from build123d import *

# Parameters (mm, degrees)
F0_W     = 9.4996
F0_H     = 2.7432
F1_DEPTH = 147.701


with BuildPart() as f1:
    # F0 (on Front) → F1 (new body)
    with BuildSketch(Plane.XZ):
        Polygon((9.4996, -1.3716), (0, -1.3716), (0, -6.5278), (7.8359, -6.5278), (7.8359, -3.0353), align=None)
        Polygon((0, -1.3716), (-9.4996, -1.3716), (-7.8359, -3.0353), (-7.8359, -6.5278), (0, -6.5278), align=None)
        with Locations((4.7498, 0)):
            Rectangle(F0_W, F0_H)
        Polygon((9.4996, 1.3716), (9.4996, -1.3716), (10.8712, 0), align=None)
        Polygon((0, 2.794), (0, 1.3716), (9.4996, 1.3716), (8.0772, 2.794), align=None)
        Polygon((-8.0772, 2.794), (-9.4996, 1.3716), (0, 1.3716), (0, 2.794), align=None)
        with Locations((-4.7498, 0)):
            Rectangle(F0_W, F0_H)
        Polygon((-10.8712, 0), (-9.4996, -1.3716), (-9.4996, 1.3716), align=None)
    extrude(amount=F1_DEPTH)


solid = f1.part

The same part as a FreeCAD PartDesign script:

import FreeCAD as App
import Part
import Sketcher
Q = App.Units.Quantity


def add_polygon(sketch, points):
    """Adds a closed chain of lines whose ends are joined by coincident constraints."""
    first, n = sketch.GeometryCount, len(points)
    for a, b in zip(points, points[1:] + points[:1]):
        sketch.addGeometry(Part.LineSegment(App.Vector(*a, 0), App.Vector(*b, 0)), False)
    for i in range(n):
        sketch.addConstraint(Sketcher.Constraint("Coincident", first + i, 2, first + (i + 1) % n, 1))

doc = App.newDocument("Part")
params = doc.addObject("Spreadsheet::Sheet", "Params")
for row, (alias, value) in enumerate([
    ("sketch1_width", "0.617 in"),
    ("sketch1_width2", "0.636 in"),
    ("pad1_length", "5.815 in"),
], start=1):
    params.set(f"A{row}", alias)
    params.set(f"B{row}", "=" + value)
    params.setAlias(f"B{row}", alias)

body = doc.addObject("PartDesign::Body", "Body")

sketch1 = doc.addObject("Sketcher::SketchObject", "Sketch")
body.addObject(sketch1)
sketch1.AttachmentSupport = (doc.XZ_Plane, [""])
sketch1.MapMode = "FlatFace"
add_polygon(sketch1, [(-7.8, -3), (-7.8, -6.5), (7.8, -6.5), (7.8, -3), (10.9, 0), (8.1, 2.8), (-8.1, 2.8), (-10.9, 0)])
sketch1.addConstraint(Sketcher.Constraint("Vertical", 0))
sketch1.addConstraint(Sketcher.Constraint("Horizontal", 1))
sketch1.addConstraint(Sketcher.Constraint("Vertical", 2))
sketch1.addConstraint(Sketcher.Constraint("Horizontal", 5))
sketch1.addConstraint(Sketcher.Constraint("Symmetric", 3, 2, 6, 2, -1, 1))
sketch1.addConstraint(Sketcher.Constraint("Symmetric", 2, 2, 7, 2, -2))
sketch1.addConstraint(Sketcher.Constraint("PointOnObject", 3, 2, -1))
sketch1.addConstraint(Sketcher.Constraint("Perpendicular", 3, 4))
sketch1.addConstraint(Sketcher.Constraint("Perpendicular", 4, 6))
sketch1.addConstraint(Sketcher.Constraint("Perpendicular", 6, 7))
sketch1.addConstraint(Sketcher.Constraint("DistanceX", 1, 1, 1, 2, Q("0.617 in")))
sketch1.addConstraint(Sketcher.Constraint("DistanceX", 5, 2, 5, 1, Q("0.636 in")))
sketch1.addConstraint(Sketcher.Constraint("DistanceY", -1, 1, 4, 2, Q("0.11 in")))
sketch1.addConstraint(Sketcher.Constraint("DistanceY", 0, 2, 0, 1, Q("0.1375 in")))
sketch1.setExpression("Constraints[18]", "Params.sketch1_width")
sketch1.setExpression("Constraints[19]", "Params.sketch1_width2")
pad1 = doc.addObject("PartDesign::Pad", "Pad")
body.addObject(pad1)
pad1.Profile = sketch1
pad1.setExpression("Length", "Params.pad1_length")

doc.recompute()
